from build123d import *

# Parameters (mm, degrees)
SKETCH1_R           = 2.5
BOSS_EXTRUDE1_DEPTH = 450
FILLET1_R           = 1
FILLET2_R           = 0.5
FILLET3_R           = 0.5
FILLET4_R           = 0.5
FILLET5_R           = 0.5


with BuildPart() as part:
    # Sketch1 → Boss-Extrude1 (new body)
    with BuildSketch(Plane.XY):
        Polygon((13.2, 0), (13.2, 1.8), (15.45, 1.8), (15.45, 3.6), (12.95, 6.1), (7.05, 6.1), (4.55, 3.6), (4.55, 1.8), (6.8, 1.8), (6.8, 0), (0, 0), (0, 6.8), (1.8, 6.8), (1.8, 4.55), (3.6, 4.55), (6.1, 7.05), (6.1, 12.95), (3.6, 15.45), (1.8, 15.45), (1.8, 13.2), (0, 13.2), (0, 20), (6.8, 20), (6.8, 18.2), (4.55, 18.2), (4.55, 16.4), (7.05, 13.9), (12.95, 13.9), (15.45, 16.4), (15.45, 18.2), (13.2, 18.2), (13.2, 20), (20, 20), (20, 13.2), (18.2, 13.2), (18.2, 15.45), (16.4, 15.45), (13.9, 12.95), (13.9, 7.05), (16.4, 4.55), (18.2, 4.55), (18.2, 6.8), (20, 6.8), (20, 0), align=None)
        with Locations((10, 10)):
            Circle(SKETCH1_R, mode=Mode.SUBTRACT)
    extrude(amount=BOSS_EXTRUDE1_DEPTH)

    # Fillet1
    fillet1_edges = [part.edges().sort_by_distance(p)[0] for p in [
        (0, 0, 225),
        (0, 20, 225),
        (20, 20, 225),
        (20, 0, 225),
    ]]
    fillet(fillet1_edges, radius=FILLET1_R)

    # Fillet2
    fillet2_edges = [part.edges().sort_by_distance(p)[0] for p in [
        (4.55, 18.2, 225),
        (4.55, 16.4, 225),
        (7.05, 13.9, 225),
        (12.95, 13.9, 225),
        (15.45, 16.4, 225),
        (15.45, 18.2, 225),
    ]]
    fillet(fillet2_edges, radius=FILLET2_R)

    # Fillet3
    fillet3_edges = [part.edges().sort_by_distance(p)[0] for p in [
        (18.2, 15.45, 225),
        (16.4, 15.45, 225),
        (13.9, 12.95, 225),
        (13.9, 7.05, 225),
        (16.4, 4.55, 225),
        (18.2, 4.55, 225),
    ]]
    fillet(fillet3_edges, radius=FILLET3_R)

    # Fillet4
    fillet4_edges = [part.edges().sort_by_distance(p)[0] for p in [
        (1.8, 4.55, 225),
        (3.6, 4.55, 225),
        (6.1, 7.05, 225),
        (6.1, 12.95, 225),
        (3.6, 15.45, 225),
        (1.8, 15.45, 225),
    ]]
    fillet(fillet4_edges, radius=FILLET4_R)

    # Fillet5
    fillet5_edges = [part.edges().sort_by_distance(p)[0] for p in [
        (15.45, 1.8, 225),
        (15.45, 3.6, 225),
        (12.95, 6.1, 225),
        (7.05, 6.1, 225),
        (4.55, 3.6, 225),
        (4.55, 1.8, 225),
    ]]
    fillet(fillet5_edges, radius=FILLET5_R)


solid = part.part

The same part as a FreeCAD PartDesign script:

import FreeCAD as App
import Part
import Sketcher


def edges_at(feature, points):
    """Names of the edges that pass closest to the given points."""
    edges = feature.Shape.Edges
    near = lambda p: min(range(len(edges)), key=lambda i: edges[i].distToShape(Part.Vertex(*p))[0])
    return sorted({f"Edge{near(p) + 1}" for p in points})

doc = App.newDocument("Part")
body = doc.addObject("PartDesign::Body", "Body")

# Sketch on XY plane
sketch1 = doc.addObject("Sketcher::SketchObject", "Sketch")
body.addObject(sketch1)
sketch1.AttachmentSupport = (doc.XY_Plane, [""])
sketch1.MapMode = "FlatFace"
sketch1.addGeometry(Part.LineSegment(App.Vector(13.2, 1.8, 0), App.Vector(13.2, 0, 0)), False)
sketch1.addGeometry(Part.LineSegment(App.Vector(13.2, 0, 0), App.Vector(20, 0, 0)), False)
sketch1.addGeometry(Part.LineSegment(App.Vector(20, 0, 0), App.Vector(20, 6.8, 0)), False)
sketch1.addGeometry(Part.LineSegment(App.Vector(20, 6.8, 0), App.Vector(18.2, 6.8, 0)), False)
sketch1.addGeometry(Part.LineSegment(App.Vector(18.2, 6.8, 0), App.Vector(18.2, 4.5, 0)), False)
sketch1.addGeometry(Part.LineSegment(App.Vector(18.2, 4.5, 0), App.Vector(16.4, 4.5, 0)), False)
sketch1.addGeometry(Part.LineSegment(App.Vector(16.4, 4.5, 0), App.Vector(13.9, 7, 0)), False)
sketch1.addGeometry(Part.LineSegment(App.Vector(13.9, 7, 0), App.Vector(13.9, 12.9, 0)), False)
sketch1.addGeometry(Part.LineSegment(App.Vector(13.9, 12.9, 0), App.Vector(16.4, 15.4, 0)), False)
sketch1.addGeometry(Part.LineSegment(App.Vector(16.4, 15.4, 0), App.Vector(18.2, 15.4, 0)), False)
sketch1.addGeometry(Part.LineSegment(App.Vector(18.2, 15.4, 0), App.Vector(18.2, 13.2, 0)), False)
sketch1.addGeometry(Part.LineSegment(App.Vector(18.2, 13.2, 0), App.Vector(20, 13.2, 0)), False)
sketch1.addGeometry(Part.LineSegment(App.Vector(20, 13.2, 0), App.Vector(20, 20, 0)), False)
sketch1.addGeometry(Part.LineSegment(App.Vector(20, 20, 0), App.Vector(13.2, 20, 0)), False)
sketch1.addGeometry(Part.LineSegment(App.Vector(13.2, 20, 0), App.Vector(13.2, 18.2, 0)), False)
sketch1.addGeometry(Part.LineSegment(App.Vector(13.2, 18.2, 0), App.Vector(15.4, 18.2, 0)), False)
sketch1.addGeometry(Part.LineSegment(App.Vector(15.4, 18.2, 0), App.Vector(15.4, 16.4, 0)), False)
sketch1.addGeometry(Part.LineSegment(App.Vector(15.4, 16.4, 0), App.Vector(12.9, 13.9, 0)), False)
sketch1.addGeometry(Part.LineSegment(App.Vector(12.9, 13.9, 0), App.Vector(7, 13.9, 0)), False)
sketch1.addGeometry(Part.LineSegment(App.Vector(7, 13.9, 0), App.Vector(4.5, 16.4, 0)), False)
sketch1.addGeometry(Part.LineSegment(App.Vector(4.5, 16.4, 0), App.Vector(4.5, 18.2, 0)), False)
sketch1.addGeometry(Part.LineSegment(App.Vector(4.5, 18.2, 0), App.Vector(6.8, 18.2, 0)), False)
sketch1.addGeometry(Part.LineSegment(App.Vector(6.8, 18.2, 0), App.Vector(6.8, 20, 0)), False)
sketch1.addGeometry(Part.LineSegment(App.Vector(6.8, 20, 0), App.Vector(0, 20, 0)), False)
sketch1.addGeometry(Part.LineSegment(App.Vector(0, 20, 0), App.Vector(0, 13.2, 0)), False)
sketch1.addGeometry(Part.LineSegment(App.Vector(0, 13.2, 0), App.Vector(1.8, 13.2, 0)), False)
sketch1.addGeometry(Part.LineSegment(App.Vector(1.8, 13.2, 0), App.Vector(1.8, 15.4, 0)), False)
sketch1.addGeometry(Part.LineSegment(App.Vector(1.8, 15.4, 0), App.Vector(3.6, 15.4, 0)), False)
sketch1.addGeometry(Part.LineSegment(App.Vector(3.6, 15.4, 0), App.Vector(6.1, 12.9, 0)), False)
sketch1.addGeometry(Part.LineSegment(App.Vector(6.1, 12.9, 0), App.Vector(6.1, 7, 0)), False)
sketch1.addGeometry(Part.LineSegment(App.Vector(6.1, 7, 0), App.Vector(3.6, 4.5, 0)), False)
sketch1.addGeometry(Part.LineSegment(App.Vector(3.6, 4.5, 0), App.Vector(1.8, 4.5, 0)), False)
sketch1.addGeometry(Part.LineSegment(App.Vector(1.8, 4.5, 0), App.Vector(1.8, 6.8, 0)), False)
sketch1.addGeometry(Part.LineSegment(App.Vector(1.8, 6.8, 0), App.Vector(0, 6.8, 0)), False)
sketch1.addGeometry(Part.LineSegment(App.Vector(0, 6.8, 0), App.Vector(0, 0, 0)), False)
sketch1.addGeometry(Part.LineSegment(App.Vector(0, 0, 0), App.Vector(6.8, 0, 0)), False)
sketch1.addGeometry(Part.LineSegment(App.Vector(6.8, 0, 0), App.Vector(6.8, 1.8, 0)), False)
sketch1.addGeometry(Part.LineSegment(App.Vector(6.8, 1.8, 0), App.Vector(4.5, 1.8, 0)), False)
sketch1.addGeometry(Part.LineSegment(App.Vector(4.5, 1.8, 0), App.Vector(4.5, 3.6, 0)), False)
sketch1.addGeometry(Part.LineSegment(App.Vector(4.5, 3.6, 0), App.Vector(7, 6.1, 0)), False)
sketch1.addGeometry(Part.LineSegment(App.Vector(7, 6.1, 0), App.Vector(12.9, 6.1, 0)), False)
sketch1.addGeometry(Part.LineSegment(App.Vector(12.9, 6.1, 0), App.Vector(15.4, 3.6, 0)), False)
sketch1.addGeometry(Part.LineSegment(App.Vector(15.4, 3.6, 0), App.Vector(15.4, 1.8, 0)), False)
sketch1.addGeometry(Part.LineSegment(App.Vector(15.4, 1.8, 0), App.Vector(13.2, 1.8, 0)), False)
sketch1.addGeometry(Part.Circle(App.Vector(10, 10, 0), App.Vector(0, 0, 1), 2.5), False)
sketch1.addConstraint(Sketcher.Constraint("Coincident", 0, 2, 1, 1))
sketch1.addConstraint(Sketcher.Constraint("Coincident", 1, 2, 2, 1))
sketch1.addConstraint(Sketcher.Constraint("Coincident", 2, 2, 3, 1))
sketch1.addConstraint(Sketcher.Constraint("Coincident", 3, 2, 4, 1))
sketch1.addConstraint(Sketcher.Constraint("Coincident", 4, 2, 5, 1))
sketch1.addConstraint(Sketcher.Constraint("Coincident", 5, 2, 6, 1))
sketch1.addConstraint(Sketcher.Constraint("Coincident", 6, 2, 7, 1))
sketch1.addConstraint(Sketcher.Constraint("Coincident", 7, 2, 8, 1))
sketch1.addConstraint(Sketcher.Constraint("Coincident", 8, 2, 9, 1))
sketch1.addConstraint(Sketcher.Constraint("Coincident", 9, 2, 10, 1))
sketch1.addConstraint(Sketcher.Constraint("Coincident", 10, 2, 11, 1))
sketch1.addConstraint(Sketcher.Constraint("Coincident", 11, 2, 12, 1))
sketch1.addConstraint(Sketcher.Constraint("Coincident", 12, 2, 13, 1))
sketch1.addConstraint(Sketcher.Constraint("Coincident", 13, 2, 14, 1))
sketch1.addConstraint(Sketcher.Constraint("Coincident", 14, 2, 15, 1))
sketch1.addConstraint(Sketcher.Constraint("Coincident", 15, 2, 16, 1))
sketch1.addConstraint(Sketcher.Constraint("Coincident", 16, 2, 17, 1))
sketch1.addConstraint(Sketcher.Constraint("Coincident", 17, 2, 18, 1))
sketch1.addConstraint(Sketcher.Constraint("Coincident", 18, 2, 19, 1))
sketch1.addConstraint(Sketcher.Constraint("Coincident", 19, 2, 20, 1))
sketch1.addConstraint(Sketcher.Constraint("Coincident", 20, 2, 21, 1))
sketch1.addConstraint(Sketcher.Constraint("Coincident", 21, 2, 22, 1))
sketch1.addConstraint(Sketcher.Constraint("Coincident", 22, 2, 23, 1))
sketch1.addConstraint(Sketcher.Constraint("Coincident", 23, 2, 24, 1))
sketch1.addConstraint(Sketcher.Constraint("Coincident", 24, 2, 25, 1))
sketch1.addConstraint(Sketcher.Constraint("Coincident", 25, 2, 26, 1))
sketch1.addConstraint(Sketcher.Constraint("Coincident", 26, 2, 27, 1))
sketch1.addConstraint(Sketcher.Constraint("Coincident", 27, 2, 28, 1))
sketch1.addConstraint(Sketcher.Constraint("Coincident", 28, 2, 29, 1))
sketch1.addConstraint(Sketcher.Constraint("Coincident", 29, 2, 30, 1))
sketch1.addConstraint(Sketcher.Constraint("Coincident", 30, 2, 31, 1))
sketch1.addConstraint(Sketcher.Constraint("Coincident", 31, 2, 32, 1))
sketch1.addConstraint(Sketcher.Constraint("Coincident", 32, 2, 33, 1))
sketch1.addConstraint(Sketcher.Constraint("Coincident", 33, 2, 34, 1))
sketch1.addConstraint(Sketcher.Constraint("Coincident", 34, 2, 35, 1))
sketch1.addConstraint(Sketcher.Constraint("Coincident", 35, 2, 36, 1))
sketch1.addConstraint(Sketcher.Constraint("Coincident", 36, 2, 37, 1))
sketch1.addConstraint(Sketcher.Constraint("Coincident", 37, 2, 38, 1))
sketch1.addConstraint(Sketcher.Constraint("Coincident", 38, 2, 39, 1))
sketch1.addConstraint(Sketcher.Constraint("Coincident", 39, 2, 40, 1))
sketch1.addConstraint(Sketcher.Constraint("Coincident", 40, 2, 41, 1))
sketch1.addConstraint(Sketcher.Constraint("Coincident", 41, 2, 42, 1))
sketch1.addConstraint(Sketcher.Constraint("Coincident", 42, 2, 43, 1))
sketch1.addConstraint(Sketcher.Constraint("Coincident", 43, 2, 0, 1))
sketch1.addConstraint(Sketcher.Constraint("Vertical", 0))
sketch1.addConstraint(Sketcher.Constraint("Horizontal", 1))
sketch1.addConstraint(Sketcher.Constraint("Vertical", 2))
sketch1.addConstraint(Sketcher.Constraint("Horizontal", 3))
sketch1.addConstraint(Sketcher.Constraint("Vertical", 4))
sketch1.addConstraint(Sketcher.Constraint("Horizontal", 5))
sketch1.addConstraint(Sketcher.Constraint("Vertical", 7))
sketch1.addConstraint(Sketcher.Constraint("Horizontal", 9))
sketch1.addConstraint(Sketcher.Constraint("Vertical", 10))
sketch1.addConstraint(Sketcher.Constraint("Horizontal", 11))
sketch1.addConstraint(Sketcher.Constraint("Vertical", 12))
sketch1.addConstraint(Sketcher.Constraint("Horizontal", 13))
sketch1.addConstraint(Sketcher.Constraint("Vertical", 14))
sketch1.addConstraint(Sketcher.Constraint("Horizontal", 15))
sketch1.addConstraint(Sketcher.Constraint("Vertical", 16))
sketch1.addConstraint(Sketcher.Constraint("Horizontal", 18))
sketch1.addConstraint(Sketcher.Constraint("Vertical", 20))
sketch1.addConstraint(Sketcher.Constraint("Horizontal", 21))
sketch1.addConstraint(Sketcher.Constraint("Vertical", 22))
sketch1.addConstraint(Sketcher.Constraint("Horizontal", 23))
sketch1.addConstraint(Sketcher.Constraint("Vertical", 24))
sketch1.addConstraint(Sketcher.Constraint("Horizontal", 25))
sketch1.addConstraint(Sketcher.Constraint("Vertical", 26))
sketch1.addConstraint(Sketcher.Constraint("Horizontal", 27))
sketch1.addConstraint(Sketcher.Constraint("Vertical", 29))
sketch1.addConstraint(Sketcher.Constraint("Horizontal", 31))
sketch1.addConstraint(Sketcher.Constraint("Vertical", 32))
sketch1.addConstraint(Sketcher.Constraint("Horizontal", 33))
sketch1.addConstraint(Sketcher.Constraint("Vertical", 34))
sketch1.addConstraint(Sketcher.Constraint("Horizontal", 35))
sketch1.addConstraint(Sketcher.Constraint("Vertical", 36))
sketch1.addConstraint(Sketcher.Constraint("Horizontal", 37))
sketch1.addConstraint(Sketcher.Constraint("Vertical", 38))
sketch1.addConstraint(Sketcher.Constraint("Horizontal", 40))
sketch1.addConstraint(Sketcher.Constraint("Vertical", 42))
sketch1.addConstraint(Sketcher.Constraint("Horizontal", 43))
sketch1.addConstraint(Sketcher.Constraint("Coincident", 34, 2, -1, 1))
sketch1.addConstraint(Sketcher.Constraint("PointOnObject", 0, 2, -1))
sketch1.addConstraint(Sketcher.Constraint("PointOnObject", 23, 2, -2))
sketch1.addConstraint(Sketcher.Constraint("Perpendicular", 6, 8))
sketch1.addConstraint(Sketcher.Constraint("Parallel", 8, 17))
sketch1.addConstraint(Sketcher.Constraint("Perpendicular", 17, 19))
sketch1.addConstraint(Sketcher.Constraint("Parallel", 19, 28))
sketch1.addConstraint(Sketcher.Constraint("Perpendicular", 28, 30))
sketch1.addConstraint(Sketcher.Constraint("Parallel", 30, 39))
sketch1.addConstraint(Sketcher.Constraint("Perpendicular", 39, 41))
sketch1.addConstraint(Sketcher.Constraint("Horizontal", 16, 2, 19, 2))
sketch1.addConstraint(Sketcher.Constraint("Horizontal", 15, 2, 20, 2))
sketch1.addConstraint(Sketcher.Constraint("Horizontal", 13, 2, 22, 2))
sketch1.addConstraint(Sketcher.Constraint("Horizontal", 11, 2, 24, 2))
sketch1.addConstraint(Sketcher.Constraint("Horizontal", 9, 2, 26, 2))
sketch1.addConstraint(Sketcher.Constraint("Horizontal", 7, 2, 28, 2))
sketch1.addConstraint(Sketcher.Constraint("Horizontal", 6, 2, 29, 2))
sketch1.addConstraint(Sketcher.Constraint("Horizontal", 5, 2, 30, 2))
sketch1.addConstraint(Sketcher.Constraint("Horizontal", 3, 2, 32, 2))
sketch1.addConstraint(Sketcher.Constraint("Horizontal", 38, 2, 41, 2))
sketch1.addConstraint(Sketcher.Constraint("Horizontal", 37, 2, 42, 2))
sketch1.addConstraint(Sketcher.Constraint("Vertical", 5, 2, 8, 2))
sketch1.addConstraint(Sketcher.Constraint("Vertical", 4, 2, 9, 2))
sketch1.addConstraint(Sketcher.Constraint("Vertical", 2, 2, 11, 2))
sketch1.addConstraint(Sketcher.Constraint("Vertical", 0, 2, 13, 2))
sketch1.addConstraint(Sketcher.Constraint("Vertical", 27, 2, 30, 2))
sketch1.addConstraint(Sketcher.Constraint("Vertical", 26, 2, 31, 2))
sketch1.addConstraint(Sketcher.Constraint("Vertical", 22, 2, 35, 2))
sketch1.addConstraint(Sketcher.Constraint("Vertical", 20, 2, 37, 2))
sketch1.addConstraint(Sketcher.Constraint("Vertical", 18, 2, 39, 2))
sketch1.addConstraint(Sketcher.Constraint("Vertical", 17, 2, 40, 2))
sketch1.addConstraint(Sketcher.Constraint("Equal", 3, 5))
sketch1.addConstraint(Sketcher.Constraint("Equal", 15, 21))
sketch1.addConstraint(Sketcher.Constraint("Equal", 13, 23))
sketch1.addConstraint(Sketcher.Constraint("Equal", 11, 25))
sketch1.addConstraint(Sketcher.Constraint("Equal", 25, 27))
sketch1.addConstraint(Sketcher.Constraint("Equal", 33, 0))
sketch1.addConstraint(Sketcher.Constraint("Equal", 35, 2))
sketch1.addConstraint(Sketcher.Constraint("Equal", 43, 4))
sketch1.addConstraint(Sketcher.Constraint("Equal", 40, 7))
sketch1.addConstraint(Sketcher.Constraint("Equal", 4, 10))
sketch1.addConstraint(Sketcher.Constraint("Equal", 2, 12))
sketch1.addConstraint(Sketcher.Constraint("Equal", 0, 14))
sketch1.addConstraint(Sketcher.Constraint("Equal", 14, 16))
sketch1.addConstraint(Sketcher.Constraint("Equal", 36, 38))
sketch1.addConstraint(Sketcher.Constraint("Equal", 8, 17))
sketch1.addConstraint(Sketcher.Constraint("Diameter", 44, 5.0))
sketch1.addConstraint(Sketcher.Constraint("DistanceX", 1, 1, 1, 2, 6.8))
sketch1.addConstraint(Sketcher.Constraint("DistanceX", 3, 2, 3, 1, 1.8))
sketch1.addConstraint(Sketcher.Constraint("DistanceX", 18, 2, 18, 1, 5.9))
sketch1.addConstraint(Sketcher.Constraint("DistanceX", -1, 1, 44, 3, 10.0))
sketch1.addConstraint(Sketcher.Constraint("DistanceY", -1, 1, 44, 3, 10.0))
sketch1.addConstraint(Sketcher.Constraint("DistanceX", -1, 1, 1, 2, 20.0))
sketch1.addConstraint(Sketcher.Constraint("DistanceX", 15, 1, 15, 2, 2.25))
pad1 = doc.addObject("PartDesign::Pad", "Pad")
body.addObject(pad1)
pad1.Profile = sketch1
pad1.Length = 450
doc.recompute()

fillet = doc.addObject("PartDesign::Fillet", "Fillet")
body.addObject(fillet)
fillet.Base = (pad1, edges_at(pad1, [
    (0, 0, 225),
    (0, 20, 225),
    (20, 20, 225),
    (20, 0, 225),
]))
fillet.Radius = 1
doc.recompute()

fillet2 = doc.addObject("PartDesign::Fillet", "Fillet001")
body.addObject(fillet2)
fillet2.Base = (fillet, edges_at(fillet, [
    (4.55, 18.2, 225),
    (4.55, 16.4, 225),
    (7.05, 13.9, 225),
    (12.95, 13.9, 225),
    (15.45, 16.4, 225),
    (15.45, 18.2, 225),
]))
fillet2.Radius = 0.5
doc.recompute()

fillet3 = doc.addObject("PartDesign::Fillet", "Fillet002")
body.addObject(fillet3)
fillet3.Base = (fillet2, edges_at(fillet2, [
    (18.2, 15.45, 225),
    (16.4, 15.45, 225),
    (13.9, 12.95, 225),
    (13.9, 7.05, 225),
    (16.4, 4.55, 225),
    (18.2, 4.55, 225),
]))
fillet3.Radius = 0.5
doc.recompute()

fillet4 = doc.addObject("PartDesign::Fillet", "Fillet003")
body.addObject(fillet4)
fillet4.Base = (fillet3, edges_at(fillet3, [
    (1.8, 4.55, 225),
    (3.6, 4.55, 225),
    (6.1, 7.05, 225),
    (6.1, 12.95, 225),
    (3.6, 15.45, 225),
    (1.8, 15.45, 225),
]))
fillet4.Radius = 0.5
doc.recompute()

fillet5 = doc.addObject("PartDesign::Fillet", "Fillet004")
body.addObject(fillet5)
fillet5.Base = (fillet4, edges_at(fillet4, [
    (15.45, 1.8, 225),
    (15.45, 3.6, 225),
    (12.95, 6.1, 225),
    (7.05, 6.1, 225),
    (4.55, 3.6, 225),
    (4.55, 1.8, 225),
]))
fillet5.Radius = 0.5

doc.recompute()
